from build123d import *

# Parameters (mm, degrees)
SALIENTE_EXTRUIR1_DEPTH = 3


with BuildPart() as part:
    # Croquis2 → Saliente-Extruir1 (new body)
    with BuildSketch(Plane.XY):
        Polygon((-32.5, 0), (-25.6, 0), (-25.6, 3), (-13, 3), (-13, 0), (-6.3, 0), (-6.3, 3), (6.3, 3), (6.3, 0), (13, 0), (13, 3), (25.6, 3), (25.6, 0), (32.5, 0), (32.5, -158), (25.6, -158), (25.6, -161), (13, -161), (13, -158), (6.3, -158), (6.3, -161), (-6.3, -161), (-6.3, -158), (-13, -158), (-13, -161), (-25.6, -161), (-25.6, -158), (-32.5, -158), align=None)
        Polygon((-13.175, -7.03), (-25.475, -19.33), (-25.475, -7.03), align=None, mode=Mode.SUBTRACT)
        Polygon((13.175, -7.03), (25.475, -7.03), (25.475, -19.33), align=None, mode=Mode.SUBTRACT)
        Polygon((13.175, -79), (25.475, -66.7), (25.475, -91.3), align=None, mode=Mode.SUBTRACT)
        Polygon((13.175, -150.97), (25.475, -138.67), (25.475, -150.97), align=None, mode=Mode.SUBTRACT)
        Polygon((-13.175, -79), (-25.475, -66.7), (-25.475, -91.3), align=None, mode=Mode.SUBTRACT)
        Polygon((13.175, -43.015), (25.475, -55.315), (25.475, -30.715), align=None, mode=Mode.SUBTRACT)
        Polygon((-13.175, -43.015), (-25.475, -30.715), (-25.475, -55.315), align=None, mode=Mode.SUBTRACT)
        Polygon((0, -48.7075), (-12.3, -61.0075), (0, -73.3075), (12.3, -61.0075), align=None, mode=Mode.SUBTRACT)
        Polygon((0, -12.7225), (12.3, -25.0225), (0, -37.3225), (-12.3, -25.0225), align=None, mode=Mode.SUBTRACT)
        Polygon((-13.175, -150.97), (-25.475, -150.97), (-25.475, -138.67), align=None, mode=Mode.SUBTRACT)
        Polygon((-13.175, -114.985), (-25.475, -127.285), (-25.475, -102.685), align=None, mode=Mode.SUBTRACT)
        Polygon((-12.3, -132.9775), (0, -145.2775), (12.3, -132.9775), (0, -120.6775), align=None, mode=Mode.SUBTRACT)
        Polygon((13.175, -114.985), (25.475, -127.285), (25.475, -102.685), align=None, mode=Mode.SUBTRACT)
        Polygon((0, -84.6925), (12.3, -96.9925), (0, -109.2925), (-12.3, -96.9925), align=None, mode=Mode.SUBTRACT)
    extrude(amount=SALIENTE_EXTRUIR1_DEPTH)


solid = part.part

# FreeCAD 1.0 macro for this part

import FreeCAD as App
import Part
import Sketcher

V = App.Vector
Q = App.Units.Quantity

doc = App.newDocument("Part")
params = doc.addObject("Spreadsheet::Sheet", "Params")
for row, (alias, value) in enumerate([
    ("sketch1_height", "158 mm"),
    ("sketch1_height2", "3 mm"),
    ("sketch1_width", "6.9 mm"),
    ("sketch1_width2", "12.6 mm"),
    ("sketch1_width3", "6.7 mm"),
    ("pad1_length", "3 mm"),
], start=1):
    params.set(f"A{row}", alias)
    params.set(f"B{row}", "=" + value)
    params.setAlias(f"B{row}", alias)

body = doc.addObject("PartDesign::Body", "Body")

# Sketch on XY plane
sketch1 = doc.addObject("Sketcher::SketchObject", "Sketch")
body.addObject(sketch1)
sketch1.AttachmentSupport = (doc.XY_Plane, [""])
sketch1.MapMode = "FlatFace"
sketch1.addGeometry([
    Part.LineSegment(V(-25.6, 0, 0), V(-32.5, 0, 0)),  # 0
    Part.LineSegment(V(-32.5, 0, 0), V(-32.5, -158, 0)),  # 1
    Part.LineSegment(V(-32.5, -158, 0), V(-25.6, -158, 0)),  # 2
    Part.LineSegment(V(-25.6, -158, 0), V(-25.6, -161, 0)),  # 3
    Part.LineSegment(V(-25.6, -161, 0), V(-13, -161, 0)),  # 4
    Part.LineSegment(V(-13, -161, 0), V(-13, -158, 0)),  # 5
    Part.LineSegment(V(-13, -158, 0), V(-6.3, -158, 0)),  # 6
    Part.LineSegment(V(-6.3, -158, 0), V(-6.3, -161, 0)),  # 7
    Part.LineSegment(V(-6.3, -161, 0), V(6.3, -161, 0)),  # 8
    Part.LineSegment(V(6.3, -161, 0), V(6.3, -158, 0)),  # 9
    Part.LineSegment(V(6.3, -158, 0), V(13, -158, 0)),  # 10
    Part.LineSegment(V(13, -158, 0), V(13, -161, 0)),  # 11
    Part.LineSegment(V(13, -161, 0), V(25.6, -161, 0)),  # 12
    Part.LineSegment(V(25.6, -161, 0), V(25.6, -158, 0)),  # 13
    Part.LineSegment(V(25.6, -158, 0), V(32.5, -158, 0)),  # 14
    Part.LineSegment(V(32.5, -158, 0), V(32.5, 0, 0)),  # 15
    Part.LineSegment(V(32.5, 0, 0), V(25.6, 0, 0)),  # 16
    Part.LineSegment(V(25.6, 0, 0), V(25.6, 3, 0)),  # 17
    Part.LineSegment(V(25.6, 3, 0), V(13, 3, 0)),  # 18
    Part.LineSegment(V(13, 3, 0), V(13, 0, 0)),  # 19
    Part.LineSegment(V(13, 0, 0), V(6.3, 0, 0)),  # 20
    Part.LineSegment(V(6.3, 0, 0), V(6.3, 3, 0)),  # 21
    Part.LineSegment(V(6.3, 3, 0), V(-6.3, 3, 0)),  # 22
    Part.LineSegment(V(-6.3, 3, 0), V(-6.3, 0, 0)),  # 23
    Part.LineSegment(V(-6.3, 0, 0), V(-13, 0, 0)),  # 24
    Part.LineSegment(V(-13, 0, 0), V(-13, 3, 0)),  # 25
    Part.LineSegment(V(-13, 3, 0), V(-25.6, 3, 0)),  # 26
    Part.LineSegment(V(-25.6, 3, 0), V(-25.6, 0, 0)),  # 27
    Part.LineSegment(V(13.2, -151, 0), V(25.5, -138.7, 0)),  # 28
    Part.LineSegment(V(25.5, -138.7, 0), V(25.5, -151, 0)),  # 29
    Part.LineSegment(V(25.5, -151, 0), V(13.2, -151, 0)),  # 30
    Part.LineSegment(V(-12.3, -133, 0), V(0, -120.7, 0)),  # 31
    Part.LineSegment(V(0, -120.7, 0), V(12.3, -133, 0)),  # 32
    Part.LineSegment(V(12.3, -133, 0), V(0, -145.3, 0)),  # 33
    Part.LineSegment(V(0, -145.3, 0), V(-12.3, -133, 0)),  # 34
    Part.LineSegment(V(13.2, -115, 0), V(25.5, -102.7, 0)),  # 35
    Part.LineSegment(V(25.5, -102.7, 0), V(25.5, -127.3, 0)),  # 36
    Part.LineSegment(V(25.5, -127.3, 0), V(13.2, -115, 0)),  # 37
    Part.LineSegment(V(0, -84.7, 0), V(12.3, -97, 0)),  # 38
    Part.LineSegment(V(12.3, -97, 0), V(0, -109.3, 0)),  # 39
    Part.LineSegment(V(0, -109.3, 0), V(-12.3, -97, 0)),  # 40
    Part.LineSegment(V(-12.3, -97, 0), V(0, -84.7, 0)),  # 41
    Part.LineSegment(V(-13.2, -151, 0), V(-25.5, -151, 0)),  # 42
    Part.LineSegment(V(-25.5, -151, 0), V(-25.5, -138.7, 0)),  # 43
    Part.LineSegment(V(-25.5, -138.7, 0), V(-13.2, -151, 0)),  # 44
    Part.LineSegment(V(-13.2, -115, 0), V(-25.5, -127.3, 0)),  # 45
    Part.LineSegment(V(-25.5, -127.3, 0), V(-25.5, -102.7, 0)),  # 46
    Part.LineSegment(V(-25.5, -102.7, 0), V(-13.2, -115, 0)),  # 47
    Part.LineSegment(V(13.2, -79, 0), V(25.5, -66.7, 0)),  # 48
    Part.LineSegment(V(25.5, -66.7, 0), V(25.5, -91.3, 0)),  # 49
    Part.LineSegment(V(25.5, -91.3, 0), V(13.2, -79, 0)),  # 50
    Part.LineSegment(V(0, -48.7, 0), V(12.3, -61, 0)),  # 51
    Part.LineSegment(V(12.3, -61, 0), V(0, -73.3, 0)),  # 52
    Part.LineSegment(V(0, -73.3, 0), V(-12.3, -61, 0)),  # 53
    Part.LineSegment(V(-12.3, -61, 0), V(0, -48.7, 0)),  # 54
    Part.LineSegment(V(13.2, -43, 0), V(25.5, -30.7, 0)),  # 55
    Part.LineSegment(V(25.5, -30.7, 0), V(25.5, -55.3, 0)),  # 56
    Part.LineSegment(V(25.5, -55.3, 0), V(13.2, -43, 0)),  # 57
    Part.LineSegment(V(13.2, -7, 0), V(25.5, -7, 0)),  # 58
    Part.LineSegment(V(25.5, -7, 0), V(25.5, -19.3, 0)),  # 59
    Part.LineSegment(V(25.5, -19.3, 0), V(13.2, -7, 0)),  # 60
    Part.LineSegment(V(0, -12.7, 0), V(12.3, -25, 0)),  # 61
    Part.LineSegment(V(12.3, -25, 0), V(0, -37.3, 0)),  # 62
    Part.LineSegment(V(0, -37.3, 0), V(-12.3, -25, 0)),  # 63
    Part.LineSegment(V(-12.3, -25, 0), V(0, -12.7, 0)),  # 64
    Part.LineSegment(V(-13.2, -79, 0), V(-25.5, -91.3, 0)),  # 65
    Part.LineSegment(V(-25.5, -91.3, 0), V(-25.5, -66.7, 0)),  # 66
    Part.LineSegment(V(-25.5, -66.7, 0), V(-13.2, -79, 0)),  # 67
    Part.LineSegment(V(-13.2, -43, 0), V(-25.5, -55.3, 0)),  # 68
    Part.LineSegment(V(-25.5, -55.3, 0), V(-25.5, -30.7, 0)),  # 69
    Part.LineSegment(V(-25.5, -30.7, 0), V(-13.2, -43, 0)),  # 70
    Part.LineSegment(V(-13.2, -7, 0), V(-25.5, -19.3, 0)),  # 71
    Part.LineSegment(V(-25.5, -19.3, 0), V(-25.5, -7, 0)),  # 72
    Part.LineSegment(V(-25.5, -7, 0), V(-13.2, -7, 0)),  # 73
], False)
sketch1.addConstraint([
    Sketcher.Constraint("Coincident", 0, 2, 1, 1),
    Sketcher.Constraint("Coincident", 1, 2, 2, 1),
    Sketcher.Constraint("Coincident", 2, 2, 3, 1),
    Sketcher.Constraint("Coincident", 3, 2, 4, 1),
    Sketcher.Constraint("Coincident", 4, 2, 5, 1),
    Sketcher.Constraint("Coincident", 5, 2, 6, 1),
    Sketcher.Constraint("Coincident", 6, 2, 7, 1),
    Sketcher.Constraint("Coincident", 7, 2, 8, 1),
    Sketcher.Constraint("Coincident", 8, 2, 9, 1),
    Sketcher.Constraint("Coincident", 9, 2, 10, 1),
    Sketcher.Constraint("Coincident", 10, 2, 11, 1),
    Sketcher.Constraint("Coincident", 11, 2, 12, 1),
    Sketcher.Constraint("Coincident", 12, 2, 13, 1),
    Sketcher.Constraint("Coincident", 13, 2, 14, 1),
    Sketcher.Constraint("Coincident", 14, 2, 15, 1),
    Sketcher.Constraint("Coincident", 15, 2, 16, 1),
    Sketcher.Constraint("Coincident", 16, 2, 17, 1),
    Sketcher.Constraint("Coincident", 17, 2, 18, 1),
    Sketcher.Constraint("Coincident", 18, 2, 19, 1),
    Sketcher.Constraint("Coincident", 19, 2, 20, 1),
    Sketcher.Constraint("Coincident", 20, 2, 21, 1),
    Sketcher.Constraint("Coincident", 21, 2, 22, 1),
    Sketcher.Constraint("Coincident", 22, 2, 23, 1),
    Sketcher.Constraint("Coincident", 23, 2, 24, 1),
    Sketcher.Constraint("Coincident", 24, 2, 25, 1),
    Sketcher.Constraint("Coincident", 25, 2, 26, 1),
    Sketcher.Constraint("Coincident", 26, 2, 27, 1),
    Sketcher.Constraint("Coincident", 27, 2, 0, 1),
    Sketcher.Constraint("Coincident", 28, 2, 29, 1),
    Sketcher.Constraint("Coincident", 29, 2, 30, 1),
    Sketcher.Constraint("Coincident", 30, 2, 28, 1),
    Sketcher.Constraint("Coincident", 31, 2, 32, 1),
    Sketcher.Constraint("Coincident", 32, 2, 33, 1),
    Sketcher.Constraint("Coincident", 33, 2, 34, 1),
    Sketcher.Constraint("Coincident", 34, 2, 31, 1),
    Sketcher.Constraint("Coincident", 35, 2, 36, 1),
    Sketcher.Constraint("Coincident", 36, 2, 37, 1),
    Sketcher.Constraint("Coincident", 37, 2, 35, 1),
    Sketcher.Constraint("Coincident", 38, 2, 39, 1),
    Sketcher.Constraint("Coincident", 39, 2, 40, 1),
    Sketcher.Constraint("Coincident", 40, 2, 41, 1),
    Sketcher.Constraint("Coincident", 41, 2, 38, 1),
    Sketcher.Constraint("Coincident", 42, 2, 43, 1),
    Sketcher.Constraint("Coincident", 43, 2, 44, 1),
    Sketcher.Constraint("Coincident", 44, 2, 42, 1),
    Sketcher.Constraint("Coincident", 45, 2, 46, 1),
    Sketcher.Constraint("Coincident", 46, 2, 47, 1),
    Sketcher.Constraint("Coincident", 47, 2, 45, 1),
    Sketcher.Constraint("Coincident", 48, 2, 49, 1),
    Sketcher.Constraint("Coincident", 49, 2, 50, 1),
    Sketcher.Constraint("Coincident", 50, 2, 48, 1),
    Sketcher.Constraint("Coincident", 51, 2, 52, 1),
    Sketcher.Constraint("Coincident", 52, 2, 53, 1),
    Sketcher.Constraint("Coincident", 53, 2, 54, 1),
    Sketcher.Constraint("Coincident", 54, 2, 51, 1),
    Sketcher.Constraint("Coincident", 55, 2, 56, 1),
    Sketcher.Constraint("Coincident", 56, 2, 57, 1),
    Sketcher.Constraint("Coincident", 57, 2, 55, 1),
    Sketcher.Constraint("Coincident", 58, 2, 59, 1),
    Sketcher.Constraint("Coincident", 59, 2, 60, 1),
    Sketcher.Constraint("Coincident", 60, 2, 58, 1),
    Sketcher.Constraint("Coincident", 61, 2, 62, 1),
    Sketcher.Constraint("Coincident", 62, 2, 63, 1),
    Sketcher.Constraint("Coincident", 63, 2, 64, 1),
    Sketcher.Constraint("Coincident", 64, 2, 61, 1),
    Sketcher.Constraint("Coincident", 65, 2, 66, 1),
    Sketcher.Constraint("Coincident", 66, 2, 67, 1),
    Sketcher.Constraint("Coincident", 67, 2, 65, 1),
    Sketcher.Constraint("Coincident", 68, 2, 69, 1),
    Sketcher.Constraint("Coincident", 69, 2, 70, 1),
    Sketcher.Constraint("Coincident", 70, 2, 68, 1),
    Sketcher.Constraint("Coincident", 71, 2, 72, 1),
    Sketcher.Constraint("Coincident", 72, 2, 73, 1),
    Sketcher.Constraint("Coincident", 73, 2, 71, 1),
    Sketcher.Constraint("Horizontal", 0),
    Sketcher.Constraint("Vertical", 1),
    Sketcher.Constraint("Horizontal", 2),
    Sketcher.Constraint("Vertical", 3),
    Sketcher.Constraint("Horizontal", 4),
    Sketcher.Constraint("Vertical", 5),
    Sketcher.Constraint("Horizontal", 6),
    Sketcher.Constraint("Vertical", 7),
    Sketcher.Constraint("Horizontal", 8),
    Sketcher.Constraint("Vertical", 9),
    Sketcher.Constraint("Horizontal", 10),
    Sketcher.Constraint("Vertical", 11),
    Sketcher.Constraint("Horizontal", 12),
    Sketcher.Constraint("Vertical", 13),
    Sketcher.Constraint("Horizontal", 14),
    Sketcher.Constraint("Vertical", 15),
    Sketcher.Constraint("Horizontal", 16),
    Sketcher.Constraint("Vertical", 17),
    Sketcher.Constraint("Horizontal", 18),
    Sketcher.Constraint("Vertical", 19),
    Sketcher.Constraint("Horizontal", 20),
    Sketcher.Constraint("Vertical", 21),
    Sketcher.Constraint("Horizontal", 22),
    Sketcher.Constraint("Vertical", 23),
    Sketcher.Constraint("Horizontal", 24),
    Sketcher.Constraint("Vertical", 25),
    Sketcher.Constraint("Horizontal", 26),
    Sketcher.Constraint("Vertical", 27),
    Sketcher.Constraint("Vertical", 29),
    Sketcher.Constraint("Horizontal", 30),
    Sketcher.Constraint("Vertical", 36),
    Sketcher.Constraint("Horizontal", 42),
    Sketcher.Constraint("Vertical", 43),
    Sketcher.Constraint("Vertical", 46),
    Sketcher.Constraint("Vertical", 49),
    Sketcher.Constraint("Vertical", 56),
    Sketcher.Constraint("Horizontal", 58),
    Sketcher.Constraint("Vertical", 59),
    Sketcher.Constraint("Vertical", 66),
    Sketcher.Constraint("Vertical", 69),
    Sketcher.Constraint("Vertical", 72),
    Sketcher.Constraint("Horizontal", 73),
    Sketcher.Constraint("Symmetric", 0, 2, 15, 2, -1, 1),
    Sketcher.Constraint("Symmetric", 20, 2, 23, 2, -1, 1),
    Sketcher.Constraint("Symmetric", 6, 2, 9, 2, -2),
    Sketcher.Constraint("Symmetric", 4, 2, 11, 2, -2),
    Sketcher.Constraint("Symmetric", 2, 2, 13, 2, -2),
    Sketcher.Constraint("Symmetric", 19, 2, 24, 2, -2),
    Sketcher.Constraint("Symmetric", 17, 2, 26, 2, -2),
    Sketcher.Constraint("Symmetric", 32, 2, 34, 2, -2),
    Sketcher.Constraint("Symmetric", 38, 2, 40, 2, -2),
    Sketcher.Constraint("Symmetric", 29, 2, 42, 2, -2),
    Sketcher.Constraint("Symmetric", 36, 2, 45, 2, -2),
    Sketcher.Constraint("Symmetric", 37, 2, 47, 2, -2),
    Sketcher.Constraint("Symmetric", 51, 2, 53, 2, -2),
    Sketcher.Constraint("Symmetric", 61, 2, 63, 2, -2),
    Sketcher.Constraint("Symmetric", 49, 2, 65, 2, -2),
    Sketcher.Constraint("Symmetric", 50, 2, 67, 2, -2),
    Sketcher.Constraint("Symmetric", 56, 2, 68, 2, -2),
    Sketcher.Constraint("Symmetric", 57, 2, 70, 2, -2),
    Sketcher.Constraint("Symmetric", 59, 2, 71, 2, -2),
    Sketcher.Constraint("Symmetric", 60, 2, 73, 2, -2),
    Sketcher.Constraint("PointOnObject", 0, 2, -1),
    Sketcher.Constraint("PointOnObject", 31, 2, -2),
    Sketcher.Constraint("PointOnObject", 33, 2, -2),
    Sketcher.Constraint("PointOnObject", 39, 2, -2),
    Sketcher.Constraint("PointOnObject", 41, 2, -2),
    Sketcher.Constraint("PointOnObject", 52, 2, -2),
    Sketcher.Constraint("PointOnObject", 54, 2, -2),
    Sketcher.Constraint("PointOnObject", 62, 2, -2),
    Sketcher.Constraint("PointOnObject", 64, 2, -2),
    Sketcher.Constraint("Parallel", 28, 31),
    Sketcher.Constraint("Perpendicular", 31, 32),
    Sketcher.Constraint("Perpendicular", 32, 33),
    Sketcher.Constraint("Perpendicular", 34, 35),
    Sketcher.Constraint("Perpendicular", 35, 37),
    Sketcher.Constraint("Parallel", 37, 38),
    Sketcher.Constraint("Perpendicular", 38, 39),
    Sketcher.Constraint("Perpendicular", 41, 44),
    Sketcher.Constraint("Perpendicular", 45, 47),
    Sketcher.Constraint("Perpendicular", 47, 48),
    Sketcher.Constraint("Perpendicular", 48, 50),
    Sketcher.Constraint("Parallel", 50, 51),
    Sketcher.Constraint("Perpendicular", 51, 52),
    Sketcher.Constraint("Parallel", 54, 55),
    Sketcher.Constraint("Perpendicular", 55, 57),
    Sketcher.Constraint("Parallel", 57, 60),
    Sketcher.Constraint("Parallel", 60, 61),
    Sketcher.Constraint("Perpendicular", 61, 62),
    Sketcher.Constraint("Perpendicular", 65, 67),
    Sketcher.Constraint("Perpendicular", 68, 70),
    Sketcher.Constraint("Horizontal", 2, 2, 5, 2),
    Sketcher.Constraint("Horizontal", 4, 2, 7, 2),
    Sketcher.Constraint("Horizontal", 18, 2, 21, 2),
    Sketcher.Constraint("Horizontal", 28, 2, 43, 2),
    Sketcher.Constraint("Vertical", 13, 2, 16, 2),
    Sketcher.Constraint("Vertical", 11, 2, 18, 2),
    Sketcher.Constraint("Vertical", 9, 2, 20, 2),
    Sketcher.Constraint("Vertical", 29, 2, 35, 2),
    Sketcher.Constraint("Vertical", 30, 2, 37, 2),
    Sketcher.Constraint("Vertical", 32, 2, 38, 2),
    Sketcher.Constraint("Vertical", 36, 2, 48, 2),
    Sketcher.Constraint("Vertical", 37, 2, 50, 2),
    Sketcher.Constraint("Vertical", 38, 2, 51, 2),
    Sketcher.Constraint("Vertical", 49, 2, 55, 2),
    Sketcher.Constraint("Vertical", 50, 2, 57, 2),
    Sketcher.Constraint("Vertical", 56, 2, 58, 2),
    Sketcher.Constraint("Vertical", 57, 2, 60, 2),
    Sketcher.Constraint("Vertical", 51, 2, 61, 2),
    Sketcher.Constraint("Equal", 4, 8),
    Sketcher.Constraint("Equal", 13, 17),
    Sketcher.Constraint("Equal", 28, 31),
    Sketcher.Constraint("DistanceY", 1, 2, 1, 1, Q("158 mm")),
    Sketcher.Constraint("DistanceY", 3, 2, 3, 1, Q("3 mm")),
    Sketcher.Constraint("DistanceX", 0, 2, 0, 1, Q("6.9 mm")),
    Sketcher.Constraint("DistanceX", 4, 1, 4, 2, Q("12.6 mm")),
    Sketcher.Constraint("DistanceX", 6, 1, 6, 2, Q("6.7 mm")),
    Sketcher.Constraint("DistanceX", 30, 2, 30, 1, Q("12.3 mm")),
    Sketcher.Constraint("DistanceY", 50, 2, -1, 1, Q("79 mm")),
    Sketcher.Constraint("DistanceY", 28, 2, -1, 1, Q("138.67 mm")),
    Sketcher.Constraint("DistanceY", 58, 2, -1, 1, Q("7.03 mm")),
    Sketcher.Constraint("DistanceX", -1, 1, 28, 2, Q("25.475 mm")),
    Sketcher.Constraint("DistanceY", 35, 2, -1, 1, Q("102.685 mm")),
    Sketcher.Constraint("DistanceY", 55, 2, -1, 1, Q("30.715 mm")),
    Sketcher.Constraint("DistanceY", 31, 2, -1, 1, Q("120.6775 mm")),
    Sketcher.Constraint("DistanceY", 38, 2, -1, 1, Q("96.9925 mm")),
    Sketcher.Constraint("DistanceY", 51, 2, -1, 1, Q("61.0075 mm")),
    Sketcher.Constraint("DistanceY", 61, 2, -1, 1, Q("25.0225 mm")),
])
sketch1.setExpression("Constraints[186]", "Params.sketch1_height")
sketch1.setExpression("Constraints[187]", "Params.sketch1_height2")
sketch1.setExpression("Constraints[188]", "Params.sketch1_width")
sketch1.setExpression("Constraints[189]", "Params.sketch1_width2")
sketch1.setExpression("Constraints[190]", "Params.sketch1_width3")
pad1 = doc.addObject("PartDesign::Pad", "Pad")
body.addObject(pad1)
pad1.Profile = sketch1
pad1.setExpression("Length", "Params.pad1_length")

doc.recompute()
